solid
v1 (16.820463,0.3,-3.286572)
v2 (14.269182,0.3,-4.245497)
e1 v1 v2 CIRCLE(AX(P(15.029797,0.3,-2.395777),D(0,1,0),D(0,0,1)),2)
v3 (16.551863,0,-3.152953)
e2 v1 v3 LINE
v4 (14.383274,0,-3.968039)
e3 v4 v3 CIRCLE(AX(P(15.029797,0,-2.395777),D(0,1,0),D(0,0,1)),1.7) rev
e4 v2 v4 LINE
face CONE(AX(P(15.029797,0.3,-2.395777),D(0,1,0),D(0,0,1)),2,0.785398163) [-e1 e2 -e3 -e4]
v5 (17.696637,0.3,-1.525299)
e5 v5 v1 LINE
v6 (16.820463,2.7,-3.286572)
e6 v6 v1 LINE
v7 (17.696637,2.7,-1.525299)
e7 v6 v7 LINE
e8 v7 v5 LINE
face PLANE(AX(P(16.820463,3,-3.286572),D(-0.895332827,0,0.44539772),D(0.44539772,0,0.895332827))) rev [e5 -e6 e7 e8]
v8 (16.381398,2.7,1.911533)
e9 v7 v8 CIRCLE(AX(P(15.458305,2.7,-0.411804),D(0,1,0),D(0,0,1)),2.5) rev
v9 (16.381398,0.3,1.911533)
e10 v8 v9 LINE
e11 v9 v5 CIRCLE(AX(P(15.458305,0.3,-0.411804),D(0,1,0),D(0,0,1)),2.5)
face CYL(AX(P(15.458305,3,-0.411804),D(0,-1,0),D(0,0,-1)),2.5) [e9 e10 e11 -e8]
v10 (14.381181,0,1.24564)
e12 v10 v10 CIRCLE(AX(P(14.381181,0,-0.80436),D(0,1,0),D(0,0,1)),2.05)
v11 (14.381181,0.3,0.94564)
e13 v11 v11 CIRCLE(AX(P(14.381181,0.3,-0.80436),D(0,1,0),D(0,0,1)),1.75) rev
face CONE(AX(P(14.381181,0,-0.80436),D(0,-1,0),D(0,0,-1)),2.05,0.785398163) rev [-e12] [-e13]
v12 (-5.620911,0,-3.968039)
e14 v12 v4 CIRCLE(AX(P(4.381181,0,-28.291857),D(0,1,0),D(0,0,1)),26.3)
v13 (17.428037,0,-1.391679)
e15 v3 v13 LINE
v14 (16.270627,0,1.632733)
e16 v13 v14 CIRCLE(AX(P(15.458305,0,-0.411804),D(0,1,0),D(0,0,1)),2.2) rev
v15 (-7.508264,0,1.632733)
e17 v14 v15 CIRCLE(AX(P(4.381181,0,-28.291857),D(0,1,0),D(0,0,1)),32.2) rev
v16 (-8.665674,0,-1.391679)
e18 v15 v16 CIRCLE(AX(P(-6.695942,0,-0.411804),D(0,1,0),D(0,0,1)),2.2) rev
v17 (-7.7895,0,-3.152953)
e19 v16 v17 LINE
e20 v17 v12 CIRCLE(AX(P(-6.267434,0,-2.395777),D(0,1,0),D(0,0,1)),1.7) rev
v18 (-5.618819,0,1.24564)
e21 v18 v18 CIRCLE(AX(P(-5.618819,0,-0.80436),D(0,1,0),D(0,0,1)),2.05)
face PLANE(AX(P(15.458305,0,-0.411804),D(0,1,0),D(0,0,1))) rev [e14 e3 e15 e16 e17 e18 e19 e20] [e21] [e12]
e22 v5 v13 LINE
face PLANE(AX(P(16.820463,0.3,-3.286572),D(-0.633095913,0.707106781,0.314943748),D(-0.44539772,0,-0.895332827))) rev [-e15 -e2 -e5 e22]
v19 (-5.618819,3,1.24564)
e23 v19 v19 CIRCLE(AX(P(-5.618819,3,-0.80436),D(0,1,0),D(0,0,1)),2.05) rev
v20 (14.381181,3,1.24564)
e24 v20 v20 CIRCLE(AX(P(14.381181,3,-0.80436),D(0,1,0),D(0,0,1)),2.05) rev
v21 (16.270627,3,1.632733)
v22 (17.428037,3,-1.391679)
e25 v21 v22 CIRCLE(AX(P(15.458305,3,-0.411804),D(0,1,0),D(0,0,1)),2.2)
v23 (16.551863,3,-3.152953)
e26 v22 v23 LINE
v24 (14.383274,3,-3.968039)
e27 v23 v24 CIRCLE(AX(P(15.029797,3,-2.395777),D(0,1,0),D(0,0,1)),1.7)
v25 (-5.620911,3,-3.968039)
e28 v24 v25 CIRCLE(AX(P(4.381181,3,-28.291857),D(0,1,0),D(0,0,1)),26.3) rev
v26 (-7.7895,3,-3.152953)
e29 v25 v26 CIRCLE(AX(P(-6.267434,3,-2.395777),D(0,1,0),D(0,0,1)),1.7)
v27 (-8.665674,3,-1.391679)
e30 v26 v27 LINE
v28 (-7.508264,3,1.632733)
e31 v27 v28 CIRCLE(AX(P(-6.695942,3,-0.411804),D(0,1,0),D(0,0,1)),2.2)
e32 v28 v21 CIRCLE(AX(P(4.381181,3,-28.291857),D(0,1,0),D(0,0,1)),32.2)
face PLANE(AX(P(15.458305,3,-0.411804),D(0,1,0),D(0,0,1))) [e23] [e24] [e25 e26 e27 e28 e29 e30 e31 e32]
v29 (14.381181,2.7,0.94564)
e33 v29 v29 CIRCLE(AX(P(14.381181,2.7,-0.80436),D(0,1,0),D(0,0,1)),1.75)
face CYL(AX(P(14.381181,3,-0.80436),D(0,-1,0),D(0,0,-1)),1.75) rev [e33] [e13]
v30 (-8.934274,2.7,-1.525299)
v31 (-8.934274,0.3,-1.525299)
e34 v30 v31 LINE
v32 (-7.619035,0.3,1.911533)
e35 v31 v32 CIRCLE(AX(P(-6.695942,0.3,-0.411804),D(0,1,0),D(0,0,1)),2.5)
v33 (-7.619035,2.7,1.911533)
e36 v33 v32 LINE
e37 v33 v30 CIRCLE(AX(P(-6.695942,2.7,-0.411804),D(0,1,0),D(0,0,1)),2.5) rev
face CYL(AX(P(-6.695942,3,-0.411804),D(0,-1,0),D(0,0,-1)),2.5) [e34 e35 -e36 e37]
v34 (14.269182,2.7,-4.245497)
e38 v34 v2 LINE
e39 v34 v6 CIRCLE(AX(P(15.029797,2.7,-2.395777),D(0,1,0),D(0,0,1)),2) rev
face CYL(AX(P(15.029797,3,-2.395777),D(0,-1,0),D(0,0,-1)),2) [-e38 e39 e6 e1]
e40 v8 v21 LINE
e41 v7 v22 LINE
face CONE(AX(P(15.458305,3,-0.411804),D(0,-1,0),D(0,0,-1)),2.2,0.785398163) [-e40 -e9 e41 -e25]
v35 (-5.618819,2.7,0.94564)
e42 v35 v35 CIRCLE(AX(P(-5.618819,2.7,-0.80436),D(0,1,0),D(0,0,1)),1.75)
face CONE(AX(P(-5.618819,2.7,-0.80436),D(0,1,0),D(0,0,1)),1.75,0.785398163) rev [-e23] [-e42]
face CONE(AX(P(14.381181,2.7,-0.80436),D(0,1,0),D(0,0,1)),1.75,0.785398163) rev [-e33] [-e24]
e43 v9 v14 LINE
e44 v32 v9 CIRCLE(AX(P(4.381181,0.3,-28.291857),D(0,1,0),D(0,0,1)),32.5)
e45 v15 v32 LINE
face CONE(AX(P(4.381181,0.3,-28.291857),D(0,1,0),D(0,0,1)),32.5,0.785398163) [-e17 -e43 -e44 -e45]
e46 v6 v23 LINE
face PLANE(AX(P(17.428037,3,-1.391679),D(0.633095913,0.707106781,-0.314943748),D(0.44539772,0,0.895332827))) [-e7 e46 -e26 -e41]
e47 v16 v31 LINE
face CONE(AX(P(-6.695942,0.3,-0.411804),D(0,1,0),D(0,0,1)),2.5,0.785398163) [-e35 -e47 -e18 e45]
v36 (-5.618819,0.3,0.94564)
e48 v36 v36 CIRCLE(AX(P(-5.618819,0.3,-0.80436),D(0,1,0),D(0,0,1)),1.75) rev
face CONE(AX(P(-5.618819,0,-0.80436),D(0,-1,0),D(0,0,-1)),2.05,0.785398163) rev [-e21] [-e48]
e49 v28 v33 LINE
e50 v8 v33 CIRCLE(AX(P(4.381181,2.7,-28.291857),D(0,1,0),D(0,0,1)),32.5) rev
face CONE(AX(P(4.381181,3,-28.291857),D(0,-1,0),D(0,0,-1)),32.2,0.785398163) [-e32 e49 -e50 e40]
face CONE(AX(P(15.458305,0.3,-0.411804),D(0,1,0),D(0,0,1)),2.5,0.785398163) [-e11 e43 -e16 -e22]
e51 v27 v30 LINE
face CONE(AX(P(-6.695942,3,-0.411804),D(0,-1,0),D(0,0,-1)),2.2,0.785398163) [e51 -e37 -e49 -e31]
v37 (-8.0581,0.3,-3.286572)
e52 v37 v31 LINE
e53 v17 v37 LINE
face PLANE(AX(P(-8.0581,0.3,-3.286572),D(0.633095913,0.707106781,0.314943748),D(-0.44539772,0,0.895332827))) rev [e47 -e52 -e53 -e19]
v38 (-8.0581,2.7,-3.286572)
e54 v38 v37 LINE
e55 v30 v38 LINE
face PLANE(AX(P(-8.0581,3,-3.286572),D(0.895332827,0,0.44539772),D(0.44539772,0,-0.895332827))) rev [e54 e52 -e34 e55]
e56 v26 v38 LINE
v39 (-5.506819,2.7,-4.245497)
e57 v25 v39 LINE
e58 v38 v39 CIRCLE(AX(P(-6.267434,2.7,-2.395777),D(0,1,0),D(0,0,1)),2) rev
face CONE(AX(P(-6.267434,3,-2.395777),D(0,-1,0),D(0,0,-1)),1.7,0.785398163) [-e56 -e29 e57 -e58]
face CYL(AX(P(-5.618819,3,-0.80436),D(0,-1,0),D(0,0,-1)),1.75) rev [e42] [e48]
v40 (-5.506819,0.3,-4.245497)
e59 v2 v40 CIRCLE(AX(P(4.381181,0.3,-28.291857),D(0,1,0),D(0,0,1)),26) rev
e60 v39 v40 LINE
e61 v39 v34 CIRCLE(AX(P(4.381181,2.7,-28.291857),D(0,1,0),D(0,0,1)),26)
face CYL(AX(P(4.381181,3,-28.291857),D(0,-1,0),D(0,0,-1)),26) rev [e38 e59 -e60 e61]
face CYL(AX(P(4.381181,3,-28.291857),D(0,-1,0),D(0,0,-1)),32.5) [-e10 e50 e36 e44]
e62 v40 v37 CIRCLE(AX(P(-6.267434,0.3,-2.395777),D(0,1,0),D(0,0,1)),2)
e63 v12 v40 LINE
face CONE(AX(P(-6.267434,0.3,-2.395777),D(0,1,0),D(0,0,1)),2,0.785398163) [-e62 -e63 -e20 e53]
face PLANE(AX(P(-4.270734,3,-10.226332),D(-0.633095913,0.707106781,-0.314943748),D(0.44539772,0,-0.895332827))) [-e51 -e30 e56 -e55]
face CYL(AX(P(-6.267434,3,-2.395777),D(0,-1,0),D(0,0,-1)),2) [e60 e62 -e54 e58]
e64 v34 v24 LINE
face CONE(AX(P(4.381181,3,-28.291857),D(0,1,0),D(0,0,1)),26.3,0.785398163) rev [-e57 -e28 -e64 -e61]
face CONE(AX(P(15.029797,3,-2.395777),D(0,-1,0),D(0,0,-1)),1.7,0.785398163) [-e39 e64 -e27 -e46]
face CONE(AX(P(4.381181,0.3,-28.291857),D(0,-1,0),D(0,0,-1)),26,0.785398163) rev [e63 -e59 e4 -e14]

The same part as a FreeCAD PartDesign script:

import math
import FreeCAD as App
import Part
import Sketcher
from FreeCAD import Vector
Q = App.Units.Quantity


def edges_at(feature, points):
    """Names of the edges that pass closest to the given points."""
    edges = feature.Shape.Edges
    near = lambda p: min(range(len(edges)), key=lambda i: edges[i].distToShape(Part.Vertex(*p))[0])
    return sorted({f"Edge{near(p) + 1}" for p in points})

doc = App.newDocument("Part")
body = doc.addObject("PartDesign::Body", "Body")

# Sketch on XZ plane
sketch1 = body.newObject("Sketcher::SketchObject", "Sketch")
sketch1.AttachmentSupport = (doc.getObject("XZ_Plane"), [""])
sketch1.MapMode = "FlatFace"
sketch1.addGeometry([
    Part.LineSegment(Vector(-8.1, -3.3, 0), Vector(-8.9, -1.5, 0)),  # 0
    Part.ArcOfCircle(Part.Circle(Vector(-6.7, -0.4, 0), Vector(0, 0, 1), 2.5), math.radians(112), math.radians(206)),  # 1
    Part.ArcOfCircle(Part.Circle(Vector(4.4, -28.3, 0), Vector(0, 0, 1), 32.5), math.radians(68), math.radians(112)),  # 2
    Part.ArcOfCircle(Part.Circle(Vector(15.5, -0.4, 0), Vector(0, 0, 1), 2.5), math.radians(-26), math.radians(68)),  # 3
    Part.LineSegment(Vector(17.7, -1.5, 0), Vector(16.8, -3.3, 0)),  # 4
    Part.ArcOfCircle(Part.Circle(Vector(15, -2.4, 0), Vector(0, 0, 1), 2), math.radians(-112), math.radians(-26)),  # 5
    Part.ArcOfCircle(Part.Circle(Vector(4.4, -28.3, 0), Vector(0, 0, 1), 26), math.radians(68), math.radians(112)),  # 6
    Part.ArcOfCircle(Part.Circle(Vector(-6.3, -2.4, 0), Vector(0, 0, 1), 2), math.radians(-154), math.radians(-68)),  # 7
    Part.Circle(Vector(-5.6, -0.8, 0), Vector(0, 0, 1), 1.8),  # 8
    Part.Circle(Vector(14.4, -0.8, 0), Vector(0, 0, 1), 1.8),  # 9
], False)
sketch1.addConstraint([
    Sketcher.Constraint("Tangent", 0, 2, 1, 2),
    Sketcher.Constraint("Tangent", 1, 1, 2, 2),
    Sketcher.Constraint("Tangent", 2, 1, 3, 2),
    Sketcher.Constraint("Tangent", 3, 1, 4, 1),
    Sketcher.Constraint("Tangent", 4, 2, 5, 2),
    Sketcher.Constraint("Tangent", 5, 1, 6, 1),
    Sketcher.Constraint("Tangent", 6, 2, 7, 2),
    Sketcher.Constraint("Tangent", 7, 1, 0, 1),
    Sketcher.Constraint("Coincident", 6, 3, 2, 3),
    Sketcher.Constraint("Equal", 1, 3),
    Sketcher.Constraint("Equal", 5, 7),
    Sketcher.Constraint("Equal", 8, 9),
    Sketcher.Constraint("Horizontal", 1, 3, 3, 3),
    Sketcher.Constraint("Horizontal", 5, 3, 7, 3),
    Sketcher.Constraint("Horizontal", 8, 3, 9, 3),
    Sketcher.Constraint("Radius", 5, Q("2 mm")),
    Sketcher.Constraint("Radius", 6, Q("26 mm")),
    Sketcher.Constraint("Diameter", 8, Q("3.5 mm")),
    Sketcher.Constraint("Radius", 1, Q("2.5 mm")),
    Sketcher.Constraint("Radius", 2, Q("32.5 mm")),
    Sketcher.Constraint("DistanceX", 8, 3, 6, 3, Q("10 mm")),
    Sketcher.Constraint("DistanceX", 8, 3, 9, 3, Q("20 mm")),
    Sketcher.Constraint("DistanceX", 5, 1, 9, 3, Q("0.112 mm")),
    Sketcher.Constraint("DistanceY", 0, 2, -1, 1, Q("1.525299 mm")),
    Sketcher.Constraint("DistanceX", -1, 1, 2, 1, Q("16.381398 mm")),
    Sketcher.Constraint("DistanceX", 7, 1, -1, 1, Q("8.0581 mm")),
    Sketcher.Constraint("DistanceY", 8, 3, -1, 1, Q("0.80436 mm")),
])
pad1 = body.newObject("PartDesign::Pad", "Pad")
pad1.Profile = sketch1
pad1.Length = 3
pad1.Reversed = True
doc.recompute()

chamfer = body.newObject("PartDesign::Chamfer", "Chamfer")
chamfer.Base = (pad1, edges_at(pad1, [
    (4.381, 0, -2.292),
    (15.733, 0, -4.268),
    (17.259, 0, -2.406),
    (17.793, 0, 0.482),
    (15.733, 3, -4.268),
    (4.381, 3, -2.292),
    (-6.971, 3, -4.268),
    (-5.619, 0, -2.554),
    (-5.619, 3, -2.554),
    (-8.496, 3, -2.406),
    (14.381, 0, -2.554),
    (14.381, 3, -2.554),
    (-9.031, 3, 0.482),
    (4.381, 3, 4.208),
    (17.793, 3, 0.482),
    (4.381, 0, 4.208),
    (17.259, 3, -2.406),
    (-9.031, 0, 0.482),
    (-8.496, 0, -2.406),
    (-6.971, 0, -4.268),
]))
chamfer.Size = 0.3

doc.recompute()
